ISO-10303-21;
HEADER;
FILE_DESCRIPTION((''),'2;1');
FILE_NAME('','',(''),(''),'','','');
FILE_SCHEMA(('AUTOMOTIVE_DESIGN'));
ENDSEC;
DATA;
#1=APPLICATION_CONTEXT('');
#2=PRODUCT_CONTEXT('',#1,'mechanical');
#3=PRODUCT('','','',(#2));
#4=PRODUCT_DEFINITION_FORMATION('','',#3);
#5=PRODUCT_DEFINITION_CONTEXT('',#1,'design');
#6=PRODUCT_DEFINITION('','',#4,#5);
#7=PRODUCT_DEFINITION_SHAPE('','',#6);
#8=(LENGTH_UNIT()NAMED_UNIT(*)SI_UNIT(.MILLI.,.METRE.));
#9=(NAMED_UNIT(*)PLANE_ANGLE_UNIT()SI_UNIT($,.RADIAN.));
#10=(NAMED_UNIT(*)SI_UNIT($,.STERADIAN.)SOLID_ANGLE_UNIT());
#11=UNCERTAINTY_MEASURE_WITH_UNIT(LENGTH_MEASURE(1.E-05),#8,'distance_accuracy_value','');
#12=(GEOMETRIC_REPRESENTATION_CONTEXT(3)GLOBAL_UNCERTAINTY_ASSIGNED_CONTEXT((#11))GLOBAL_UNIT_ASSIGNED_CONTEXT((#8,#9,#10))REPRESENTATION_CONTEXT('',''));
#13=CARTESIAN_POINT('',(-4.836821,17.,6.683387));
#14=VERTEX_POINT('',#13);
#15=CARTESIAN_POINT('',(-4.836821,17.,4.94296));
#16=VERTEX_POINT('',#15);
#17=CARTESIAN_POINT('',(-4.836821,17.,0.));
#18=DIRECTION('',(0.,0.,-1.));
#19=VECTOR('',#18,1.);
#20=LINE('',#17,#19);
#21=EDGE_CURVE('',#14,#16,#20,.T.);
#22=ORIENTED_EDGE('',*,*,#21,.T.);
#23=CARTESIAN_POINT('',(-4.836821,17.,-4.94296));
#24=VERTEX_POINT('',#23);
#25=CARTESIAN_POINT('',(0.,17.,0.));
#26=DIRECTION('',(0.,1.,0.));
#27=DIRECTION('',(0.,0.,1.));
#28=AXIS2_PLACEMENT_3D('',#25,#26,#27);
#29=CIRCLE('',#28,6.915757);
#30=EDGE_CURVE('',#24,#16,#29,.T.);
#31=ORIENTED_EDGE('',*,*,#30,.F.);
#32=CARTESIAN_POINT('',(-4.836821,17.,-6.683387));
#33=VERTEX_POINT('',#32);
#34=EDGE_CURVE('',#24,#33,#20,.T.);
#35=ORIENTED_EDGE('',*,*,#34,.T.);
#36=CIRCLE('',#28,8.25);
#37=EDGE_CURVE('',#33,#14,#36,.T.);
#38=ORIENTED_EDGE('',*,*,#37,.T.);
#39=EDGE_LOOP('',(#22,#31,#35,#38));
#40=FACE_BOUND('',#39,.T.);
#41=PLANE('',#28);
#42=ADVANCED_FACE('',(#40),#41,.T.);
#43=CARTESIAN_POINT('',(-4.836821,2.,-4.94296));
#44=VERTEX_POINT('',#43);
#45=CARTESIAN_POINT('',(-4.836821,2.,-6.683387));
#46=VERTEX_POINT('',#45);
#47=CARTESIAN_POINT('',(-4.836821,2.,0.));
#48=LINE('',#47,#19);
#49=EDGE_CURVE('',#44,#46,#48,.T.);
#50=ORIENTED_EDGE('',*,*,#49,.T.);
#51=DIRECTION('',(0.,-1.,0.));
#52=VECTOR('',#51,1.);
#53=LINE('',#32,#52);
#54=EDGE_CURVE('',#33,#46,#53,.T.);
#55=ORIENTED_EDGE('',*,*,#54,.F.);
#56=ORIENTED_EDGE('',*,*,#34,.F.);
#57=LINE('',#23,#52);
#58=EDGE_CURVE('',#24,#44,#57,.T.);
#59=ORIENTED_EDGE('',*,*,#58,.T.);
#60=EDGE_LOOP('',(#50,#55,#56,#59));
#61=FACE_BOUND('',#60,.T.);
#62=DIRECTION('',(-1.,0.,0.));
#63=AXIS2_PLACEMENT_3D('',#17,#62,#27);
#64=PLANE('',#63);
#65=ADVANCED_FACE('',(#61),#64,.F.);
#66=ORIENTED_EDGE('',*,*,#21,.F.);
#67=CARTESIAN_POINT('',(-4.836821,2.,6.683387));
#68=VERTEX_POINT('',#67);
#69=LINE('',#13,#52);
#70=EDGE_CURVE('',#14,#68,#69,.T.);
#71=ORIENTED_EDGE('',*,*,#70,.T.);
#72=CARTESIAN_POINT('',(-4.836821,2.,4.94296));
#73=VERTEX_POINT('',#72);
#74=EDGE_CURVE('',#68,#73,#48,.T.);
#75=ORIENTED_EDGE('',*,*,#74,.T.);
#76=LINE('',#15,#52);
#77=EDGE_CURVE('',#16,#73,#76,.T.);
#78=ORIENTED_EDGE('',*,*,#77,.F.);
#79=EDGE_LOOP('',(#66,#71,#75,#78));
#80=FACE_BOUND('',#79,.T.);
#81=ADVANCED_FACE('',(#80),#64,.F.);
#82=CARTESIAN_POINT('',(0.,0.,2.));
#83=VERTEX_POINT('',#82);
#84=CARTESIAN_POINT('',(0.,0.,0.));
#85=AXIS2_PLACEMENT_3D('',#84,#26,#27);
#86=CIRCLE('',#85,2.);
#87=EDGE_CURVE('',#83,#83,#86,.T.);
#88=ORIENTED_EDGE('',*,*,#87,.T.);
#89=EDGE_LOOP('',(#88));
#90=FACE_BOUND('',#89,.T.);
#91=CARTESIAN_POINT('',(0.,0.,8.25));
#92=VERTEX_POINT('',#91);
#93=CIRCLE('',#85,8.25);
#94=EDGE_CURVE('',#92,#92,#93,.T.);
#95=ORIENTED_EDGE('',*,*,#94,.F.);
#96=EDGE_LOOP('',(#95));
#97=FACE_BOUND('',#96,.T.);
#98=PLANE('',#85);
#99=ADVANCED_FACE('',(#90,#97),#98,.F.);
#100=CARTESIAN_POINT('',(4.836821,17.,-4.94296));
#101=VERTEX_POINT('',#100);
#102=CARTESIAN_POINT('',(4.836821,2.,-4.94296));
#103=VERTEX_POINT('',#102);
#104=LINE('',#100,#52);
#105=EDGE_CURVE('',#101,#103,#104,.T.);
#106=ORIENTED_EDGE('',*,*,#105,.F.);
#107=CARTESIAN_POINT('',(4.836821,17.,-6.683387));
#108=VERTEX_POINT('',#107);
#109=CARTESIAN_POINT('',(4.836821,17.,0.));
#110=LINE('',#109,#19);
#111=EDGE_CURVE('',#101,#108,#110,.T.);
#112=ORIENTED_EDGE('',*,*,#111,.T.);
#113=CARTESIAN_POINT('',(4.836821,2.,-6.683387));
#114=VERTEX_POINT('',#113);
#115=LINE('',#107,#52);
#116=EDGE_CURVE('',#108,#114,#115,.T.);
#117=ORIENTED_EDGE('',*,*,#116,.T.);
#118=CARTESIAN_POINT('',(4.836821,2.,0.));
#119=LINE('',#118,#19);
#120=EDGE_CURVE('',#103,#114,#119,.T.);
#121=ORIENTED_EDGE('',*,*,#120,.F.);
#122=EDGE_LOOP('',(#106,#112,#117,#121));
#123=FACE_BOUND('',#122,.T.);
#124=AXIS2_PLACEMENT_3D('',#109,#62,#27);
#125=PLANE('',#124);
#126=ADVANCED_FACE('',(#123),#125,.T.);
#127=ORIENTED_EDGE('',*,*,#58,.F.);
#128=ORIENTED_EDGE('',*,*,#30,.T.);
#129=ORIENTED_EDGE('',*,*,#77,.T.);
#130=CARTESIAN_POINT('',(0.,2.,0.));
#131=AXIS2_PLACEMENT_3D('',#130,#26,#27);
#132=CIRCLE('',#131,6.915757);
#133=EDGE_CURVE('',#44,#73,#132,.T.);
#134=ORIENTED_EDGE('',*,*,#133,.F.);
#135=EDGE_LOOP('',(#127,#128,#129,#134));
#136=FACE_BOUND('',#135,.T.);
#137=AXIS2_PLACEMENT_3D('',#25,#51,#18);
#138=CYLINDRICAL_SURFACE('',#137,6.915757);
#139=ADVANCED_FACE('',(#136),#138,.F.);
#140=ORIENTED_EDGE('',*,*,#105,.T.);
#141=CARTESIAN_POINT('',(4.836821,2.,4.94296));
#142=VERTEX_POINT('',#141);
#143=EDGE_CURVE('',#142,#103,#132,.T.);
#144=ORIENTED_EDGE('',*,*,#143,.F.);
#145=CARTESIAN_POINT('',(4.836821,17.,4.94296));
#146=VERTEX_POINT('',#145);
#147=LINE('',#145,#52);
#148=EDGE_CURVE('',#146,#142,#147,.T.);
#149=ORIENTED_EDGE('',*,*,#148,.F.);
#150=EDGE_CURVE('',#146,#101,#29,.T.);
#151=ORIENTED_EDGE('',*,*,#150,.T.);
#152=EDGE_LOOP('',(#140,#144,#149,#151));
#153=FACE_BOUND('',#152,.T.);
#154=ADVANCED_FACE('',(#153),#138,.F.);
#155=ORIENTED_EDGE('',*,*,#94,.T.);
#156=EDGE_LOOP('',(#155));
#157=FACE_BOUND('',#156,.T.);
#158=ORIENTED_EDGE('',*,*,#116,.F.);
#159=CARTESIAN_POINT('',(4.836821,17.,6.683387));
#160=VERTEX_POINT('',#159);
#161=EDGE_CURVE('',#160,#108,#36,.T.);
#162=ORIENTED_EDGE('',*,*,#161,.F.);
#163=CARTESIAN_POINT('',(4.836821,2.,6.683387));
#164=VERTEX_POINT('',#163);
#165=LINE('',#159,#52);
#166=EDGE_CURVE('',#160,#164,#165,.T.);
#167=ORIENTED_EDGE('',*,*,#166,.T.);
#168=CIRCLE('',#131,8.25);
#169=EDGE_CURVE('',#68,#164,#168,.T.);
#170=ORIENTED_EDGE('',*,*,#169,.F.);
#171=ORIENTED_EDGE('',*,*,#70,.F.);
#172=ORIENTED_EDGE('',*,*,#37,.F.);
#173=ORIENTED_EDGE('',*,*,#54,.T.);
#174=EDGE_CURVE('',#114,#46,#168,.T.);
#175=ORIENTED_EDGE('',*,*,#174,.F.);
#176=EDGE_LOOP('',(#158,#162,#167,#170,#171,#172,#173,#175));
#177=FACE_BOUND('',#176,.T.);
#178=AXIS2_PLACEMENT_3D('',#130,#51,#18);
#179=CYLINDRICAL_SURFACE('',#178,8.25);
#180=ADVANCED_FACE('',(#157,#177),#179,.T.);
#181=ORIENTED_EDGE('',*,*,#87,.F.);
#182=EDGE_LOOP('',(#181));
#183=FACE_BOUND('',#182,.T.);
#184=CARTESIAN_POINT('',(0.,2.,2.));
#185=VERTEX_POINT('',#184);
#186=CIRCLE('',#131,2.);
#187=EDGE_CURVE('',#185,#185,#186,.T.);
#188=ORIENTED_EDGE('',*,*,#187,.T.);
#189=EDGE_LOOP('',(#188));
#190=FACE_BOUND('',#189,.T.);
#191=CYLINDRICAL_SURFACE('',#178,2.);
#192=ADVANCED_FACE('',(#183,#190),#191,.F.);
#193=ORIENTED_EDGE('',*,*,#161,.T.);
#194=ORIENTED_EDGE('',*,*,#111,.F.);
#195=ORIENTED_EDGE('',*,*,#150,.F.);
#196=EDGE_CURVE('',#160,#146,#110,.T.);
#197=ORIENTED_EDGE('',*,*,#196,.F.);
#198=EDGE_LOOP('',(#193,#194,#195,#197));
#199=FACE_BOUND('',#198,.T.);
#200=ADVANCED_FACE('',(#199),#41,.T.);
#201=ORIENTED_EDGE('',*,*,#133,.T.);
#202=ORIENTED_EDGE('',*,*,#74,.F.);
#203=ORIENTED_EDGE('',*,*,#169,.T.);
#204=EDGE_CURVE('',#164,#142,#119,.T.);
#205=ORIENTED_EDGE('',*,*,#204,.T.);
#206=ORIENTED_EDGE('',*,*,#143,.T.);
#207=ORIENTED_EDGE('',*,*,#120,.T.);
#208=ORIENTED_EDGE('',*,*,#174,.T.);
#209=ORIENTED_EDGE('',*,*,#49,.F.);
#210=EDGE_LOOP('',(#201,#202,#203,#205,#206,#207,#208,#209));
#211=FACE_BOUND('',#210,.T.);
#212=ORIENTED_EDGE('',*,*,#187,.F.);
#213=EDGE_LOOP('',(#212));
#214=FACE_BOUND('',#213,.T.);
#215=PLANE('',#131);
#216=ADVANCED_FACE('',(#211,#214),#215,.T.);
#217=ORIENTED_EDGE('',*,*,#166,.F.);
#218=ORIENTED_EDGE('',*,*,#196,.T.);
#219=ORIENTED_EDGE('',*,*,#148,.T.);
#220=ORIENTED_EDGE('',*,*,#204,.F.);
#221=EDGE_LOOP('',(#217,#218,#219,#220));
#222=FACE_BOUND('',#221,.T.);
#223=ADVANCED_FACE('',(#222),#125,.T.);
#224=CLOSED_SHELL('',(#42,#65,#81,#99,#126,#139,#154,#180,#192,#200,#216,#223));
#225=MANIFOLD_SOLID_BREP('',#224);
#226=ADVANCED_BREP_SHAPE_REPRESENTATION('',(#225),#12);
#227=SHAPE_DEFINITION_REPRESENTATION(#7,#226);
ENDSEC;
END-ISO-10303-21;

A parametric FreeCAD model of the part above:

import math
import FreeCAD as App
import Part
import Sketcher
from FreeCAD import Vector

doc = App.newDocument("Part")
body = doc.addObject("PartDesign::Body", "Body")

sketch1 = doc.addObject("Sketcher::SketchObject", "Sketch")
body.addObject(sketch1)
sketch1.AttachmentSupport = (doc.XZ_Plane, [""])
sketch1.MapMode = "FlatFace"
sketch1.addGeometry([
    Part.Circle(Vector(0, 0, 0), Vector(0, 0, 1), 8.2),
    Part.Circle(Vector(0, 0, 0), Vector(0, 0, 1), 2),
], False)
sketch1.addConstraint([
    Sketcher.Constraint("Coincident", 0, 3, -1, 1),
    Sketcher.Constraint("Coincident", 1, 3, -1, 1),
    Sketcher.Constraint("Diameter", 1, 4.0),
    Sketcher.Constraint("Diameter", 0, 16.5),
])
pad1 = doc.addObject("PartDesign::Pad", "Pad")
body.addObject(pad1)
pad1.Profile = sketch1
pad1.Length = 2
pad1.Reversed = True

sketch2 = doc.addObject("Sketcher::SketchObject", "Sketch001")
body.addObject(sketch2)
sketch2.AttachmentSupport = (doc.XZ_Plane, [""])
sketch2.MapMode = "FlatFace"
sketch2.AttachmentOffset = App.Placement(Vector(0, 0, -2), App.Rotation())
sketch2.addGeometry([
    Part.ArcOfCircle(Part.Circle(Vector(0, 0, 0), Vector(0, 0, 1), 8.2), math.radians(126), math.radians(234)),
    Part.LineSegment(Vector(-4.8, 6.7, 0), Vector(-4.8, 4.9, 0)),
    Part.ArcOfCircle(Part.Circle(Vector(0, 0, 0), Vector(0, 0, 1), 6.9), math.radians(134), math.radians(226)),
    Part.LineSegment(Vector(-4.8, -4.9, 0), Vector(-4.8, -6.7, 0)),
    Part.LineSegment(Vector(4.8, 4.9, 0), Vector(4.8, 6.7, 0)),
    Part.ArcOfCircle(Part.Circle(Vector(0, 0, 0), Vector(0, 0, 1), 8.3), math.radians(0), math.radians(54)),
    Part.ArcOfCircle(Part.Circle(Vector(0, 0, 0), Vector(0, 0, 1), 8.3), math.radians(-54), math.radians(0)),
    Part.LineSegment(Vector(4.8, -6.7, 0), Vector(4.8, -4.9, 0)),
    Part.ArcOfCircle(Part.Circle(Vector(0, 0, 0), Vector(0, 0, 1), 6.9), math.radians(-46), math.radians(0)),
    Part.ArcOfCircle(Part.Circle(Vector(0, 0, 0), Vector(0, 0, 1), 6.9), math.radians(0), math.radians(46)),
], False)
sketch2.addConstraint([
    Sketcher.Constraint("Coincident", 0, 1, 1, 1),
    Sketcher.Constraint("Coincident", 1, 2, 2, 1),
    Sketcher.Constraint("Coincident", 2, 2, 3, 1),
    Sketcher.Constraint("Coincident", 3, 2, 0, 2),
    Sketcher.Constraint("Coincident", 4, 2, 5, 2),
    Sketcher.Constraint("Tangent", 5, 1, 6, 2),
    Sketcher.Constraint("Coincident", 6, 1, 7, 1),
    Sketcher.Constraint("Coincident", 7, 2, 8, 1),
    Sketcher.Constraint("Tangent", 8, 2, 9, 1),
    Sketcher.Constraint("Coincident", 9, 2, 4, 1),
    Sketcher.Constraint("Vertical", 1),
    Sketcher.Constraint("Vertical", 3),
    Sketcher.Constraint("Vertical", 4),
    Sketcher.Constraint("Vertical", 7),
    Sketcher.Constraint("Coincident", 0, 3, -1, 1),
    Sketcher.Constraint("Coincident", 2, 3, -1, 1),
    Sketcher.Constraint("Coincident", 5, 3, -1, 1),
    Sketcher.Constraint("Coincident", 8, 3, -1, 1),
    Sketcher.Constraint("Equal", 0, 5),
    Sketcher.Constraint("Equal", 5, 6),
    Sketcher.Constraint("Equal", 2, 8),
    Sketcher.Constraint("Equal", 8, 9),
    Sketcher.Constraint("PointOnObject", 5, 1, -1),
    Sketcher.Constraint("PointOnObject", 8, 2, -1),
    Sketcher.Constraint("Horizontal", 0, 1, 4, 2),
    Sketcher.Constraint("Horizontal", 3, 2, 6, 1),
    Sketcher.Constraint("Vertical", 1, 2, 2, 2),
    Sketcher.Constraint("Radius", 0, 8.25),
    Sketcher.Constraint("Radius", 2, 6.915757),
    Sketcher.Constraint("DistanceY", 1, 2, 1, 1, 1.740427),
])
pad2 = doc.addObject("PartDesign::Pad", "Pad001")
body.addObject(pad2)
pad2.Profile = sketch2
pad2.Length = 15
pad2.Reversed = True

doc.recompute()
